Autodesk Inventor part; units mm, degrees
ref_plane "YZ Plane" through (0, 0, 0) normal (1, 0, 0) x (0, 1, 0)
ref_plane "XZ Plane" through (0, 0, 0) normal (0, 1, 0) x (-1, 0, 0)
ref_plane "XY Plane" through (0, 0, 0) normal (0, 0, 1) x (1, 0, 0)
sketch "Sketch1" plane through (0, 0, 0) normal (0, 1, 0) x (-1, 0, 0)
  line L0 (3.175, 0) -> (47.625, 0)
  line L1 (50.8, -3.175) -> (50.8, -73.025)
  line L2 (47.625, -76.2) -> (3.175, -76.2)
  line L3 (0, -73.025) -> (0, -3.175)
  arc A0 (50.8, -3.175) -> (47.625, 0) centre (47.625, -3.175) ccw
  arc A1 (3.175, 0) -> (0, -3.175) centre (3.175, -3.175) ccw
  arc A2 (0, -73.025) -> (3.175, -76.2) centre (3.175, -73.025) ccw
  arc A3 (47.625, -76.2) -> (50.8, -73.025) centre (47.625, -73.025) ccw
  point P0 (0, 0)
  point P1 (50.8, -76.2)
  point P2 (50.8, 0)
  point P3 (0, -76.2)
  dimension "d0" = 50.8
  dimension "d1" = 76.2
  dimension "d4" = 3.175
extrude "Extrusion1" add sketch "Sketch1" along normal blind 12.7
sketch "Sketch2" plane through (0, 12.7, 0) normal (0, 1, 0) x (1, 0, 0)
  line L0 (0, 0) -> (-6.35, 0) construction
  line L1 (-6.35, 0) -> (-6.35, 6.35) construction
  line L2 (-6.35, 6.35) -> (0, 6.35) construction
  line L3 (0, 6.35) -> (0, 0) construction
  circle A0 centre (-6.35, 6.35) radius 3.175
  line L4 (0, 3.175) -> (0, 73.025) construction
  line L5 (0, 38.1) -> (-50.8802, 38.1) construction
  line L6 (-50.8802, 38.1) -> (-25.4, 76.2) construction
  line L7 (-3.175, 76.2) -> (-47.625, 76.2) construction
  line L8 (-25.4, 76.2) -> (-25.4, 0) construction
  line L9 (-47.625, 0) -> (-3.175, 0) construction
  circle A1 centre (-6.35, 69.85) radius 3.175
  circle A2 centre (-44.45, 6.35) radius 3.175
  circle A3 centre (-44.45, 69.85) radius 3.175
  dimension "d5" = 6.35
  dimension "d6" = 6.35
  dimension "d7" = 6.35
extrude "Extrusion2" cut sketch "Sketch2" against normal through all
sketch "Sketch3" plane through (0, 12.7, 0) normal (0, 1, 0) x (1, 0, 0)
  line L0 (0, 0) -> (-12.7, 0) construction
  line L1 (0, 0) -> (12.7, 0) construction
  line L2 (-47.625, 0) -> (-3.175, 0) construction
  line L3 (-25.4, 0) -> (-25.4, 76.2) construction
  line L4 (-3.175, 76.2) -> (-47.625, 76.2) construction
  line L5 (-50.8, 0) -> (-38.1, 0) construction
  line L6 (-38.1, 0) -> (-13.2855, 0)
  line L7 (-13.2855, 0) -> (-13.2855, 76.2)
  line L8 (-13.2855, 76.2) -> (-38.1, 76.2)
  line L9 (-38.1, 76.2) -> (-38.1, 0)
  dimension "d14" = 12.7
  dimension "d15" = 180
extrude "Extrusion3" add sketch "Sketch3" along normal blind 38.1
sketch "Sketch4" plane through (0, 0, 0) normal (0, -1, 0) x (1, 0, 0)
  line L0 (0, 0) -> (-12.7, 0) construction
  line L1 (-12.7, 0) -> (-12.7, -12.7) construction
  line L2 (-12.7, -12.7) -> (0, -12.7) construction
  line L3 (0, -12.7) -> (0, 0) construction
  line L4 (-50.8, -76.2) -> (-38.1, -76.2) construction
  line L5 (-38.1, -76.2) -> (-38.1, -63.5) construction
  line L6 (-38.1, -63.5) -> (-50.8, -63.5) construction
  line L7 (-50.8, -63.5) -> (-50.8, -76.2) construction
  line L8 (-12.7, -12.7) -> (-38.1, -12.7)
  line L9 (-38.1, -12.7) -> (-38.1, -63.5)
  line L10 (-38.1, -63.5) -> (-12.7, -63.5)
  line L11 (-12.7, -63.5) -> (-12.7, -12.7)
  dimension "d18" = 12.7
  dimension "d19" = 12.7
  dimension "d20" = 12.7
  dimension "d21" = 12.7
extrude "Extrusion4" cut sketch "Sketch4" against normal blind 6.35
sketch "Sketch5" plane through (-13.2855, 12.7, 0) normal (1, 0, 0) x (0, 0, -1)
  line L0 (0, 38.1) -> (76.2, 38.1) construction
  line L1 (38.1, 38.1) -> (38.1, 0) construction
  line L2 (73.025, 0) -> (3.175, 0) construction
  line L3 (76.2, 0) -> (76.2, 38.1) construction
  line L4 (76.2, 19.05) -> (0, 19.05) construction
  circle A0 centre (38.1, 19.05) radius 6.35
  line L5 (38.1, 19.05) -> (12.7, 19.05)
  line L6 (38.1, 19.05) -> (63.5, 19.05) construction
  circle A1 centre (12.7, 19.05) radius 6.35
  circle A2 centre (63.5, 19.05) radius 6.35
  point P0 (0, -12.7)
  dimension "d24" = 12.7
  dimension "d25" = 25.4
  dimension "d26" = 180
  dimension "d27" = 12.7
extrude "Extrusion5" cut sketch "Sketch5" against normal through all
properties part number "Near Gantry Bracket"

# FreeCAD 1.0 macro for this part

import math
import FreeCAD as App
import Part
import Sketcher
Q = App.Units.Quantity


def add_polygon(sketch, points):
    """Adds a closed chain of lines whose ends are joined by coincident constraints."""
    first, n = sketch.GeometryCount, len(points)
    for a, b in zip(points, points[1:] + points[:1]):
        sketch.addGeometry(Part.LineSegment(App.Vector(*a, 0), App.Vector(*b, 0)), False)
    for i in range(n):
        sketch.addConstraint(Sketcher.Constraint("Coincident", first + i, 2, first + (i + 1) % n, 1))

doc = App.newDocument("Part")
body = doc.addObject("PartDesign::Body", "Body")

# Sketch on XZ plane
sketch1 = doc.addObject("Sketcher::SketchObject", "Sketch")
body.addObject(sketch1)
sketch1.AttachmentSupport = (doc.XZ_Plane, [""])
sketch1.MapMode = "FlatFace"
sketch1.addGeometry([
    Part.LineSegment(App.Vector(-47.6, 0, 0), App.Vector(-3.2, 0, 0)),  # 0
    Part.ArcOfCircle(Part.Circle(App.Vector(-3.2, -3.2, 0), App.Vector(0, 0, 1), 3.2), math.radians(0), math.radians(90)),  # 1
    Part.LineSegment(App.Vector(0, -3.2, 0), App.Vector(0, -73, 0)),  # 2
    Part.ArcOfCircle(Part.Circle(App.Vector(-3.2, -73, 0), App.Vector(0, 0, 1), 3.2), math.radians(-90), math.radians(0)),  # 3
    Part.LineSegment(App.Vector(-3.2, -76.2, 0), App.Vector(-47.6, -76.2, 0)),  # 4
    Part.ArcOfCircle(Part.Circle(App.Vector(-47.6, -73, 0), App.Vector(0, 0, 1), 3.2), math.radians(180), math.radians(270)),  # 5
    Part.LineSegment(App.Vector(-50.8, -73, 0), App.Vector(-50.8, -3.2, 0)),  # 6
    Part.ArcOfCircle(Part.Circle(App.Vector(-47.6, -3.2, 0), App.Vector(0, 0, 1), 3.2), math.radians(90), math.radians(180)),  # 7
], False)
sketch1.addConstraint([
    Sketcher.Constraint("Tangent", 0, 2, 1, 2),
    Sketcher.Constraint("Tangent", 1, 1, 2, 1),
    Sketcher.Constraint("Tangent", 2, 2, 3, 2),
    Sketcher.Constraint("Tangent", 3, 1, 4, 1),
    Sketcher.Constraint("Tangent", 4, 2, 5, 2),
    Sketcher.Constraint("Tangent", 5, 1, 6, 1),
    Sketcher.Constraint("Tangent", 6, 2, 7, 2),
    Sketcher.Constraint("Tangent", 7, 1, 0, 1),
    Sketcher.Constraint("Horizontal", 0),
    Sketcher.Constraint("Vertical", 2),
    Sketcher.Constraint("Horizontal", 4),
    Sketcher.Constraint("Vertical", 6),
    Sketcher.Constraint("Equal", 1, 3),
    Sketcher.Constraint("Equal", 3, 5),
    Sketcher.Constraint("Equal", 5, 7),
    Sketcher.Constraint("PointOnObject", 0, 2, -1),
    Sketcher.Constraint("PointOnObject", 1, 1, -2),
    Sketcher.Constraint("DistanceY", 3, 1, -1, 1, Q("3 in")),
    Sketcher.Constraint("DistanceX", 5, 1, -1, 1, Q("2 in")),
    Sketcher.Constraint("Radius", 1, Q("0.125 in")),
])
pad1 = doc.addObject("PartDesign::Pad", "Pad")
body.addObject(pad1)
pad1.Profile = sketch1
pad1.Length = Q("0.5 in")
pad1.Reversed = True

# Sketch on XZ plane
sketch2 = doc.addObject("Sketcher::SketchObject", "Sketch001")
body.addObject(sketch2)
sketch2.AttachmentSupport = (doc.XZ_Plane, [""])
sketch2.MapMode = "FlatFace"
sketch2.AttachmentOffset = App.Placement(App.Vector(0, 0, -0.5 * 25.4), App.Rotation())
sketch2.addGeometry([
    Part.Circle(App.Vector(-6.3, -6.3, 0), App.Vector(0, 0, 1), 3.2),
    Part.Circle(App.Vector(-6.3, -69.8, 0), App.Vector(0, 0, 1), 3.2),
    Part.Circle(App.Vector(-44.5, -6.3, 0), App.Vector(0, 0, 1), 3.2),
    Part.Circle(App.Vector(-44.5, -69.8, 0), App.Vector(0, 0, 1), 3.2),
], False)
sketch2.addConstraint([
    Sketcher.Constraint("Equal", 0, 1),
    Sketcher.Constraint("Equal", 1, 2),
    Sketcher.Constraint("Equal", 2, 3),
    Sketcher.Constraint("Horizontal", 0, 3, 2, 3),
    Sketcher.Constraint("Horizontal", 1, 3, 3, 3),
    Sketcher.Constraint("Vertical", 0, 3, 1, 3),
    Sketcher.Constraint("Vertical", 2, 3, 3, 3),
    Sketcher.Constraint("Diameter", 0, Q("0.25 in")),
    Sketcher.Constraint("DistanceX", 0, 3, -1, 1, Q("0.25 in")),
    Sketcher.Constraint("DistanceY", 0, 3, -1, 1, Q("0.25 in")),
    Sketcher.Constraint("DistanceY", 1, 3, 0, 3, Q("2.5 in")),
    Sketcher.Constraint("DistanceX", 2, 3, 0, 3, Q("1.5 in")),
])
pocket1 = doc.addObject("PartDesign::Pocket", "Pocket")
body.addObject(pocket1)
pocket1.Profile = sketch2
pocket1.Type = "ThroughAll"
pocket1.Reversed = True

# Sketch on XZ plane
sketch3 = doc.addObject("Sketcher::SketchObject", "Sketch002")
body.addObject(sketch3)
sketch3.AttachmentSupport = (doc.XZ_Plane, [""])
sketch3.MapMode = "FlatFace"
sketch3.AttachmentOffset = App.Placement(App.Vector(0, 0, -0.5 * 25.4), App.Rotation())
add_polygon(sketch3, [(-38, -76), (-38, 0), (-13, 0), (-13, -76)])  # lines 0-3
sketch3.addConstraint([
    Sketcher.Constraint("Vertical", 0),
    Sketcher.Constraint("Horizontal", 1),
    Sketcher.Constraint("Vertical", 2),
    Sketcher.Constraint("Horizontal", 3),
    Sketcher.Constraint("PointOnObject", 0, 2, -1),
    Sketcher.Constraint("DistanceY", 0, 1, 0, 2, Q("3 in")),
    Sketcher.Constraint("DistanceX", 0, 2, -1, 1, Q("1.5 in")),
    Sketcher.Constraint("DistanceX", 1, 1, 1, 2, 24.8145),
])
pad2 = doc.addObject("PartDesign::Pad", "Pad001")
body.addObject(pad2)
pad2.Profile = sketch3
pad2.Length = Q("1.5 in")
pad2.Reversed = True

# Sketch on XZ plane
sketch4 = doc.addObject("Sketcher::SketchObject", "Sketch003")
body.addObject(sketch4)
sketch4.AttachmentSupport = (doc.XZ_Plane, [""])
sketch4.MapMode = "FlatFace"
add_polygon(sketch4, [(-13, -64), (-13, -13), (-38, -13), (-38, -64)])  # lines 0-3
sketch4.addConstraint([
    Sketcher.Constraint("Vertical", 0),
    Sketcher.Constraint("Horizontal", 1),
    Sketcher.Constraint("Vertical", 2),
    Sketcher.Constraint("Horizontal", 3),
    Sketcher.Constraint("DistanceX", 0, 2, -1, 1, Q("0.5 in")),
    Sketcher.Constraint("DistanceY", 0, 2, -1, 1, Q("0.5 in")),
    Sketcher.Constraint("DistanceX", 1, 2, 1, 1, Q("1 in")),
    Sketcher.Constraint("DistanceY", 0, 1, 0, 2, Q("2 in")),
])
pocket2 = doc.addObject("PartDesign::Pocket", "Pocket001")
body.addObject(pocket2)
pocket2.Profile = sketch4
pocket2.Length = Q("0.25 in")

# Sketch on YZ plane
sketch5 = doc.addObject("Sketcher::SketchObject", "Sketch004")
body.addObject(sketch5)
sketch5.AttachmentSupport = (doc.YZ_Plane, [""])
sketch5.MapMode = "FlatFace"
sketch5.AttachmentOffset = App.Placement(App.Vector(0, 0, -13.2855), App.Rotation())
sketch5.addGeometry([
    Part.Circle(App.Vector(32, -38, 0), App.Vector(0, 0, 1), 6),
    Part.Circle(App.Vector(32, -13, 0), App.Vector(0, 0, 1), 6),
    Part.Circle(App.Vector(32, -64, 0), App.Vector(0, 0, 1), 6),
], False)
sketch5.addConstraint([
    Sketcher.Constraint("Equal", 0, 1),
    Sketcher.Constraint("Equal", 1, 2),
    Sketcher.Constraint("Vertical", 0, 3, 1, 3),
    Sketcher.Constraint("Vertical", 1, 3, 2, 3),
    Sketcher.Constraint("Diameter", 0, Q("0.5 in")),
    Sketcher.Constraint("DistanceY", 0, 3, 1, 3, Q("1 in")),
    Sketcher.Constraint("DistanceY", 2, 3, 0, 3, Q("1 in")),
    Sketcher.Constraint("DistanceY", 1, 3, -1, 1, Q("0.5 in")),
    Sketcher.Constraint("DistanceX", -1, 1, 0, 3, Q("1.25 in")),
])
pocket3 = doc.addObject("PartDesign::Pocket", "Pocket002")
body.addObject(pocket3)
pocket3.Profile = sketch5
pocket3.Type = "ThroughAll"

doc.recompute()
